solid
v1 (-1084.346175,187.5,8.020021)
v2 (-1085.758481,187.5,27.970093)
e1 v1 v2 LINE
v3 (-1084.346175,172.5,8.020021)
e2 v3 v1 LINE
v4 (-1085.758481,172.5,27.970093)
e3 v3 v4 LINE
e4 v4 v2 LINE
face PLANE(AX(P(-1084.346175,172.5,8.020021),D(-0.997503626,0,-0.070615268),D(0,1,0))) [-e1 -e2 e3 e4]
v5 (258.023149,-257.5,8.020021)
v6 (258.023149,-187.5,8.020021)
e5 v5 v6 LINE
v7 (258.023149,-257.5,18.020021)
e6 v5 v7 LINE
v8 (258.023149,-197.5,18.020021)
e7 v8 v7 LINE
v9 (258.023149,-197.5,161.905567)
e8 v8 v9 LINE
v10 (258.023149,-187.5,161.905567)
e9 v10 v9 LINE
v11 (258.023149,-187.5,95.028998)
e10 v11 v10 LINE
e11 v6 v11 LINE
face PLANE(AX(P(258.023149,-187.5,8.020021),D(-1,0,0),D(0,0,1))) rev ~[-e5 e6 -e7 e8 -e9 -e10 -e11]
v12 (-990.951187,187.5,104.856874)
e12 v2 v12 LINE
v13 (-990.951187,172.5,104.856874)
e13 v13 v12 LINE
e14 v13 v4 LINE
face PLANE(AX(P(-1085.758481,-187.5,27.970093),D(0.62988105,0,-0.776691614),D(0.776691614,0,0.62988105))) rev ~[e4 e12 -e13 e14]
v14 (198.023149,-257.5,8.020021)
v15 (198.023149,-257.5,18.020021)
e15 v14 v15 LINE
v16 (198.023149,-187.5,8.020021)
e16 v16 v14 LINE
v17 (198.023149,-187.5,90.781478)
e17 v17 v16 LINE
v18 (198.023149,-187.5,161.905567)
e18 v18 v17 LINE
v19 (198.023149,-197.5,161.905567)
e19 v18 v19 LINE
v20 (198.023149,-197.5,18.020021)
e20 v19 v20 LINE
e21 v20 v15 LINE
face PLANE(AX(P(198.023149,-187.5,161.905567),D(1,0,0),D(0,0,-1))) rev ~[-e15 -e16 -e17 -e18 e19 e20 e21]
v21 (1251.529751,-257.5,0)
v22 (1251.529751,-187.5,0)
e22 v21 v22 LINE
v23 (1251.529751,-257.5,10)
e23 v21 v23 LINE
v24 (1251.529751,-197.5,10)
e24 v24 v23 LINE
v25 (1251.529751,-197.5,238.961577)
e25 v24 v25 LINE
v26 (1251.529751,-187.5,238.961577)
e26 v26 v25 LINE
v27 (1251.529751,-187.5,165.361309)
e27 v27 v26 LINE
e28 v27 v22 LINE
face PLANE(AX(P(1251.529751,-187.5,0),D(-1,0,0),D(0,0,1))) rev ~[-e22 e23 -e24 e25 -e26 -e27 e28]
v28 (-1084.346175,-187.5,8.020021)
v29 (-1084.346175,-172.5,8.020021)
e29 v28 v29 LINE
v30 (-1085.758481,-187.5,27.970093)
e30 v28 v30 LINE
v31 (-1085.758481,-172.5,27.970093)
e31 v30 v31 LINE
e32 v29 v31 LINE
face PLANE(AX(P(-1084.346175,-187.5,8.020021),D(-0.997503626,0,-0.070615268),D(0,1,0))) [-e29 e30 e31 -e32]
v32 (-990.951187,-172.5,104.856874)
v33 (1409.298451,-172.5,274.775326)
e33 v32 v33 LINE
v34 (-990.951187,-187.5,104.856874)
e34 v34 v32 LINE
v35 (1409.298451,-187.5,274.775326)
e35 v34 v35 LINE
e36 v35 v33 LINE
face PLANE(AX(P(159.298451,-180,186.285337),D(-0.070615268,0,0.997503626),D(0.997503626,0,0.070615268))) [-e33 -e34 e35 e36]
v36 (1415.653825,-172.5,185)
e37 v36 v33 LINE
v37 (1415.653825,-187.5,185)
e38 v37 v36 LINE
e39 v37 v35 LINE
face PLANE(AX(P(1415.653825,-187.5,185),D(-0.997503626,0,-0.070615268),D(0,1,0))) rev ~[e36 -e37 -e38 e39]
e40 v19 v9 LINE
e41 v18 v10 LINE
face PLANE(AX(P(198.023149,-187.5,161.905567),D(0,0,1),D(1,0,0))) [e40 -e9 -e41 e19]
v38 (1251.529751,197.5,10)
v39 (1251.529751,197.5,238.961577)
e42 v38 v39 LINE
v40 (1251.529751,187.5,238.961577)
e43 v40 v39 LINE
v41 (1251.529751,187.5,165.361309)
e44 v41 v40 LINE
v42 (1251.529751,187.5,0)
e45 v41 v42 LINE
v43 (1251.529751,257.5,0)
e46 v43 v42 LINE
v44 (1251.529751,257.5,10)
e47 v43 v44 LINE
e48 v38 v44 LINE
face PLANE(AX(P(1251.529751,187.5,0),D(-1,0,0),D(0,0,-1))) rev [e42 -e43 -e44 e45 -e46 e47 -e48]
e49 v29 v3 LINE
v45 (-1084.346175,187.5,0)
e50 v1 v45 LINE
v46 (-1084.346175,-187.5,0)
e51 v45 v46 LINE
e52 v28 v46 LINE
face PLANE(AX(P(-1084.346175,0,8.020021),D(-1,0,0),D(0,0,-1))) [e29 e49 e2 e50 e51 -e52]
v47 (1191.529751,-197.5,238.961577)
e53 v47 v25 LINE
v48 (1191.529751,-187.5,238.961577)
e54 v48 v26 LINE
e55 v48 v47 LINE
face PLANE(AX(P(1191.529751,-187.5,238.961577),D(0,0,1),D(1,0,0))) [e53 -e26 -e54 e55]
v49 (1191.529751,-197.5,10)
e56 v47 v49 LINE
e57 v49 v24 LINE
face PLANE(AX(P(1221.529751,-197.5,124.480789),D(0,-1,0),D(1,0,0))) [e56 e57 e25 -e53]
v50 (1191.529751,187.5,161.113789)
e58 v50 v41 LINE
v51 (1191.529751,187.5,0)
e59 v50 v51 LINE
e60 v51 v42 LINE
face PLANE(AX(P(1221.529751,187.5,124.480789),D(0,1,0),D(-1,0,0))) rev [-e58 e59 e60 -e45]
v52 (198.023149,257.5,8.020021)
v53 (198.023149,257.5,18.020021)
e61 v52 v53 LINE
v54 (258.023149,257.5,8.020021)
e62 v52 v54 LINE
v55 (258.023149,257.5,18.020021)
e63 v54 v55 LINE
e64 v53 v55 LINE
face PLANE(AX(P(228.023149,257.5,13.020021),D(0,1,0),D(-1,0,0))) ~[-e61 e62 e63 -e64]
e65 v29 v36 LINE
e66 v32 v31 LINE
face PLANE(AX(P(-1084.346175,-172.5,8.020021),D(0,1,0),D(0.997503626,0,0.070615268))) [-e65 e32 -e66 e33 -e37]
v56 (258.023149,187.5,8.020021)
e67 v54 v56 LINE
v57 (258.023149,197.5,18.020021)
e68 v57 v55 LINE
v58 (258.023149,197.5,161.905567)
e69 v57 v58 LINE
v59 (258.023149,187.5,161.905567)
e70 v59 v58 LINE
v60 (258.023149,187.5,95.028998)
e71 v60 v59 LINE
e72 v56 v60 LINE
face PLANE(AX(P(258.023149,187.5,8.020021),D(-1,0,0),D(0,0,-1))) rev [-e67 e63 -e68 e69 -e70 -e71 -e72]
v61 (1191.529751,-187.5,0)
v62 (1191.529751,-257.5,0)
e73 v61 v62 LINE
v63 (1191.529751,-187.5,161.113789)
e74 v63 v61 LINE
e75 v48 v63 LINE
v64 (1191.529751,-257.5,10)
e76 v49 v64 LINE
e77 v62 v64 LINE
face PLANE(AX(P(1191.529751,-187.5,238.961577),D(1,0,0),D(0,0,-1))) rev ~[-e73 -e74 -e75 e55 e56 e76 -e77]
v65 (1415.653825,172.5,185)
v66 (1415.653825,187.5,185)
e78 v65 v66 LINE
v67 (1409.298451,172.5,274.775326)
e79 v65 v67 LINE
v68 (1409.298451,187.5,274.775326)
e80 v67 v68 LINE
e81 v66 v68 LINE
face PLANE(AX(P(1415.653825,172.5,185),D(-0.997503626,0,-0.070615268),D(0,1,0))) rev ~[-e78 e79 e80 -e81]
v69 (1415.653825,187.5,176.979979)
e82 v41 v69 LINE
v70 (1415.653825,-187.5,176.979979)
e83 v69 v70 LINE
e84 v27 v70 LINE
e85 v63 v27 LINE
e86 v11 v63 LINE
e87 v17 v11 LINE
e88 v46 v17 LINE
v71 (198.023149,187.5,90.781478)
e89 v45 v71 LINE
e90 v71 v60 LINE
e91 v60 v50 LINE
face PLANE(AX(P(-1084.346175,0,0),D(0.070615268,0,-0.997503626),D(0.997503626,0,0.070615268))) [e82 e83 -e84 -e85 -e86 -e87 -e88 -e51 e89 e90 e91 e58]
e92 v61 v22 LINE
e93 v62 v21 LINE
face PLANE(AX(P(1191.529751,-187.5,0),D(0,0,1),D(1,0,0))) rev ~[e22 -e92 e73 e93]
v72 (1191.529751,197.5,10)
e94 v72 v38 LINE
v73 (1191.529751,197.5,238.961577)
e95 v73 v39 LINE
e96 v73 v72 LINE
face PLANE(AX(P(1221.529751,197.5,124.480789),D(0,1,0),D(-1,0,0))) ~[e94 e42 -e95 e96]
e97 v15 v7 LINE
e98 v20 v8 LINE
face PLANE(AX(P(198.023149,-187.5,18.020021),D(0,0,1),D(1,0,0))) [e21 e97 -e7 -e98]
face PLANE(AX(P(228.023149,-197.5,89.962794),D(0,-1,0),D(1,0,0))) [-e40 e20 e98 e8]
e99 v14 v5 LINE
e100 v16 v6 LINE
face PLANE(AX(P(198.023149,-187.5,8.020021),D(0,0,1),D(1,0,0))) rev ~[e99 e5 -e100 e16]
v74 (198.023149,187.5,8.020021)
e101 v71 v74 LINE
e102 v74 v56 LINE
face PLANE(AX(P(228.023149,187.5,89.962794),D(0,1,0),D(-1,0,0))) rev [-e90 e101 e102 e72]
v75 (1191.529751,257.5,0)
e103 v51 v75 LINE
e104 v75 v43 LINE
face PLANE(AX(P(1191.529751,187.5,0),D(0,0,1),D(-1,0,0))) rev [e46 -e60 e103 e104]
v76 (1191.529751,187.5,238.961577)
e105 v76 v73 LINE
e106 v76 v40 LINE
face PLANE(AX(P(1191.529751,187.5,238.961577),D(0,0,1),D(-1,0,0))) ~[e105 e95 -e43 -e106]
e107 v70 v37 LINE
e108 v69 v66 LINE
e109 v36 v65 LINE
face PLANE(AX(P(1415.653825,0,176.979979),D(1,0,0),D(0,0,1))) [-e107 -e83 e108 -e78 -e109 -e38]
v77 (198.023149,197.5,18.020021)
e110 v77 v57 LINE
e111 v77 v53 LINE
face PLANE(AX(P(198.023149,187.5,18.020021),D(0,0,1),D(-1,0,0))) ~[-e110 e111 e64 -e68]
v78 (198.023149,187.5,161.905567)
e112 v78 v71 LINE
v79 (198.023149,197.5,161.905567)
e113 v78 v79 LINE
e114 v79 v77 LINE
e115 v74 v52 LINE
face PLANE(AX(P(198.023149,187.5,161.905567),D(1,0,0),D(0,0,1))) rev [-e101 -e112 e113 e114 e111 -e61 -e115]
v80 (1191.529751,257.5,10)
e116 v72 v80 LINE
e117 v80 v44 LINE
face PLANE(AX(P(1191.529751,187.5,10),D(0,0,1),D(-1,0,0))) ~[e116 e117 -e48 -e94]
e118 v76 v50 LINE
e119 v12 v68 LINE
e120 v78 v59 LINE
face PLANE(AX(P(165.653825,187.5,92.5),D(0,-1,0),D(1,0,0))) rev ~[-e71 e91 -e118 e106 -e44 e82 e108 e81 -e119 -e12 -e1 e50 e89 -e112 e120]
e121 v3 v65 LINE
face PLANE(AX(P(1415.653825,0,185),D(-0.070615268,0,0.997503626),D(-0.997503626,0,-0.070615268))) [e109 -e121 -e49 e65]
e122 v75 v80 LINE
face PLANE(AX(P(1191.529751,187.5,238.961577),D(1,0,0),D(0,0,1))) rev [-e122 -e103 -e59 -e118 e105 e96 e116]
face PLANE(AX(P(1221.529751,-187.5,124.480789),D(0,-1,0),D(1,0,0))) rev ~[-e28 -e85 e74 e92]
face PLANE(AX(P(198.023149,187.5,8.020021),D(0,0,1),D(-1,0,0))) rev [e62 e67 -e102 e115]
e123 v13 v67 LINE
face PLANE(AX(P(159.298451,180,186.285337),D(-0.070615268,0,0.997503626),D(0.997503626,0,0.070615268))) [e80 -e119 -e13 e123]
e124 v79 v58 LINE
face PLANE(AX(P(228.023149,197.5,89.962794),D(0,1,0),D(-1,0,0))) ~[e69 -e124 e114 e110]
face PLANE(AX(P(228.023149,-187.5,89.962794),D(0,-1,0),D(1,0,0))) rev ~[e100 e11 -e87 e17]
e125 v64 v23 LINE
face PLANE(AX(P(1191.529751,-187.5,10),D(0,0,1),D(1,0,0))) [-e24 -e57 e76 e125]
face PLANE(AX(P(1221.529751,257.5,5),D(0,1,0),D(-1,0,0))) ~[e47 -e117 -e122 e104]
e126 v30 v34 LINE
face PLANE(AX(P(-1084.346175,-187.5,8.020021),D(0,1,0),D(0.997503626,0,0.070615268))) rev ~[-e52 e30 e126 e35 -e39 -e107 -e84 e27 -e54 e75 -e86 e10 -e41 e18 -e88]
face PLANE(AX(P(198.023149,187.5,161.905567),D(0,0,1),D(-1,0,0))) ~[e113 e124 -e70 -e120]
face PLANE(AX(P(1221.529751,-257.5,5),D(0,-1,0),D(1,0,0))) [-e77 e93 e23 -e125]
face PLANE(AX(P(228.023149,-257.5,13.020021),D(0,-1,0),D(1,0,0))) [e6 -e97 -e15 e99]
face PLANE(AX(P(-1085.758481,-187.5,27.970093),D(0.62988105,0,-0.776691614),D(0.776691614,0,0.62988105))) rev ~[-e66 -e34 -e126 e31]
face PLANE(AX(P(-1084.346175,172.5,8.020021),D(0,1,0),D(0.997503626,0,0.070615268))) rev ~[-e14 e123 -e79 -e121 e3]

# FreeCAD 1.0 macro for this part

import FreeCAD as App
import Part
import Sketcher

doc = App.newDocument("Part")
body = doc.addObject("PartDesign::Body", "Body")

sketch1 = doc.addObject("Sketcher::SketchObject", "Sketch")
body.addObject(sketch1)
sketch1.AttachmentSupport = (doc.XZ_Plane, [""])
sketch1.MapMode = "FlatFace"
sketch1.addGeometry([
    Part.LineSegment(App.Vector(-1084, 8, 0), App.Vector(-1084, 0, 0)),
    Part.LineSegment(App.Vector(-1084, 0, 0), App.Vector(1416, 177, 0)),
    Part.LineSegment(App.Vector(1416, 177, 0), App.Vector(1416, 185, 0)),
    Part.LineSegment(App.Vector(1416, 185, 0), App.Vector(-1084, 8, 0)),
], False)
sketch1.addConstraint([
    Sketcher.Constraint("Coincident", 0, 2, 1, 1),
    Sketcher.Constraint("Coincident", 1, 2, 2, 1),
    Sketcher.Constraint("Coincident", 2, 2, 3, 1),
    Sketcher.Constraint("Coincident", 3, 2, 0, 1),
    Sketcher.Constraint("Vertical", 0),
    Sketcher.Constraint("Vertical", 2),
    Sketcher.Constraint("PointOnObject", 0, 2, -1),
    Sketcher.Constraint("Parallel", 1, 3),
    Sketcher.Constraint("DistanceY", -1, 1, 2, 2, 185.0),
    Sketcher.Constraint("DistanceX", 0, 2, 1, 2, 2500.0),
    Sketcher.Constraint("DistanceY", 0, 2, 0, 1, 8.020021),
    Sketcher.Constraint("DistanceX", 0, 2, -1, 1, 1084.346175),
])
pad1 = doc.addObject("PartDesign::Pad", "Pad")
body.addObject(pad1)
pad1.Profile = sketch1
pad1.Length = 375
pad1.Midplane = True

sketch2 = doc.addObject("Sketcher::SketchObject", "Sketch001")
body.addObject(sketch2)
sketch2.Placement = App.Placement(App.Vector(-5.972032, 0, 84.360274), App.Rotation(App.Vector(0.997503626, 0, 0.070615268), App.Vector(0, 1, 0), App.Vector(-0.070615268, 0, 0.997503626), "ZXY"))
sketch2.addGeometry([
    Part.LineSegment(App.Vector(-1081, -172, 0), App.Vector(-1081, -187, 0)),
    Part.LineSegment(App.Vector(-1081, -187, 0), App.Vector(1425, -187, 0)),
    Part.LineSegment(App.Vector(1425, -187, 0), App.Vector(1425, -172, 0)),
    Part.LineSegment(App.Vector(1425, -172, 0), App.Vector(-1081, -172, 0)),
    Part.LineSegment(App.Vector(-1081, 187, 0), App.Vector(-1081, 172, 0)),
    Part.LineSegment(App.Vector(-1081, 172, 0), App.Vector(1425, 172, 0)),
    Part.LineSegment(App.Vector(1425, 172, 0), App.Vector(1425, 187, 0)),
    Part.LineSegment(App.Vector(1425, 187, 0), App.Vector(-1081, 187, 0)),
], False)
sketch2.addConstraint([
    Sketcher.Constraint("Coincident", 0, 2, 1, 1),
    Sketcher.Constraint("Coincident", 1, 2, 2, 1),
    Sketcher.Constraint("Coincident", 2, 2, 3, 1),
    Sketcher.Constraint("Coincident", 3, 2, 0, 1),
    Sketcher.Constraint("Coincident", 4, 2, 5, 1),
    Sketcher.Constraint("Coincident", 5, 2, 6, 1),
    Sketcher.Constraint("Coincident", 6, 2, 7, 1),
    Sketcher.Constraint("Coincident", 7, 2, 4, 1),
    Sketcher.Constraint("Vertical", 0),
    Sketcher.Constraint("Horizontal", 1),
    Sketcher.Constraint("Vertical", 2),
    Sketcher.Constraint("Horizontal", 3),
    Sketcher.Constraint("Vertical", 4),
    Sketcher.Constraint("Horizontal", 5),
    Sketcher.Constraint("Vertical", 6),
    Sketcher.Constraint("Horizontal", 7),
    Sketcher.Constraint("Symmetric", 3, 2, 4, 2, -1),
    Sketcher.Constraint("Symmetric", 1, 2, 6, 2, -1),
    Sketcher.Constraint("DistanceY", 0, 2, 0, 1, 15.0),
    Sketcher.Constraint("DistanceY", 3, 2, 4, 2, 345.0),
    Sketcher.Constraint("DistanceX", 1, 1, 1, 2, 2506.256554),
    Sketcher.Constraint("DistanceX", 0, 2, -1, 1, 1081.072906),
])
pad2 = doc.addObject("PartDesign::Pad", "Pad001")
body.addObject(pad2)
pad2.Profile = sketch2
pad2.Length = 90
body2 = doc.addObject("PartDesign::Body", "Body001")

sketch3 = doc.addObject("Sketcher::SketchObject", "Sketch002")
body2.addObject(sketch3)
sketch3.AttachmentSupport = (doc.getObject("XZ_Plane001"), [""])
sketch3.MapMode = "FlatFace"
sketch3.AttachmentOffset = App.Placement(App.Vector(0, 0, 187.5), App.Rotation())
sketch3.addGeometry([
    Part.LineSegment(App.Vector(198, 18, 0), App.Vector(198, 8, 0)),
    Part.LineSegment(App.Vector(198, 8, 0), App.Vector(258, 8, 0)),
    Part.LineSegment(App.Vector(258, 8, 0), App.Vector(258, 18, 0)),
    Part.LineSegment(App.Vector(258, 18, 0), App.Vector(198, 18, 0)),
], False)
sketch3.addConstraint([
    Sketcher.Constraint("Coincident", 0, 2, 1, 1),
    Sketcher.Constraint("Coincident", 1, 2, 2, 1),
    Sketcher.Constraint("Coincident", 2, 2, 3, 1),
    Sketcher.Constraint("Coincident", 3, 2, 0, 1),
    Sketcher.Constraint("Vertical", 0),
    Sketcher.Constraint("Horizontal", 1),
    Sketcher.Constraint("Vertical", 2),
    Sketcher.Constraint("Horizontal", 3),
    Sketcher.Constraint("DistanceX", 1, 1, 1, 2, 60.0),
    Sketcher.Constraint("DistanceY", 0, 2, 0, 1, 10.0),
    Sketcher.Constraint("DistanceX", -1, 1, 0, 2, 198.023149),
    Sketcher.Constraint("DistanceY", -1, 1, 0, 2, 8.020021),
])
pad3 = doc.addObject("PartDesign::Pad", "Pad002")
body2.addObject(pad3)
pad3.Profile = sketch3
pad3.Length = 70
body3 = doc.addObject("PartDesign::Body", "Body002")

sketch4 = doc.addObject("Sketcher::SketchObject", "Sketch003")
body3.addObject(sketch4)
sketch4.AttachmentSupport = (doc.getObject("XZ_Plane002"), [""])
sketch4.MapMode = "FlatFace"
sketch4.AttachmentOffset = App.Placement(App.Vector(0, 0, 187.5), App.Rotation())
sketch4.addGeometry([
    Part.LineSegment(App.Vector(1192, 10, 0), App.Vector(1192, 0, 0)),
    Part.LineSegment(App.Vector(1192, 0, 0), App.Vector(1252, 0, 0)),
    Part.LineSegment(App.Vector(1252, 0, 0), App.Vector(1252, 10, 0)),
    Part.LineSegment(App.Vector(1252, 10, 0), App.Vector(1192, 10, 0)),
], False)
sketch4.addConstraint([
    Sketcher.Constraint("Coincident", 0, 2, 1, 1),
    Sketcher.Constraint("Coincident", 1, 2, 2, 1),
    Sketcher.Constraint("Coincident", 2, 2, 3, 1),
    Sketcher.Constraint("Coincident", 3, 2, 0, 1),
    Sketcher.Constraint("Vertical", 0),
    Sketcher.Constraint("Horizontal", 1),
    Sketcher.Constraint("Vertical", 2),
    Sketcher.Constraint("Horizontal", 3),
    Sketcher.Constraint("PointOnObject", 0, 2, -1),
    Sketcher.Constraint("DistanceX", 1, 1, 1, 2, 60.0),
    Sketcher.Constraint("DistanceY", 0, 2, 0, 1, 10.0),
    Sketcher.Constraint("DistanceX", -1, 1, 0, 2, 1191.529751),
])
pad4 = doc.addObject("PartDesign::Pad", "Pad003")
body3.addObject(pad4)
pad4.Profile = sketch4
pad4.Length = 70
body.AllowCompound = True
doc.recompute()

boolean = doc.addObject("PartDesign::Boolean", "Boolean")
body.addObject(boolean)
boolean.Type = "Fuse"
boolean.addObjects([body2])
doc.recompute()

boolean2 = doc.addObject("PartDesign::Boolean", "Boolean001")
body.addObject(boolean2)
boolean2.Type = "Fuse"
boolean2.addObjects([body3])

sketch5 = doc.addObject("Sketcher::SketchObject", "Sketch004")
body.addObject(sketch5)
sketch5.AttachmentSupport = (doc.XZ_Plane, [""])
sketch5.MapMode = "FlatFace"
sketch5.AttachmentOffset = App.Placement(App.Vector(0, 0, 187.5), App.Rotation())
sketch5.addGeometry([
    Part.LineSegment(App.Vector(1192, 239, 0), App.Vector(1192, 0, 0)),
    Part.LineSegment(App.Vector(1192, 0, 0), App.Vector(1252, 0, 0)),
    Part.LineSegment(App.Vector(1252, 0, 0), App.Vector(1252, 239, 0)),
    Part.LineSegment(App.Vector(1252, 239, 0), App.Vector(1192, 239, 0)),
    Part.LineSegment(App.Vector(198, 162, 0), App.Vector(198, 8, 0)),
    Part.LineSegment(App.Vector(198, 8, 0), App.Vector(258, 8, 0)),
    Part.LineSegment(App.Vector(258, 8, 0), App.Vector(258, 162, 0)),
    Part.LineSegment(App.Vector(258, 162, 0), App.Vector(198, 162, 0)),
], False)
sketch5.addConstraint([
    Sketcher.Constraint("Coincident", 0, 2, 1, 1),
    Sketcher.Constraint("Coincident", 1, 2, 2, 1),
    Sketcher.Constraint("Coincident", 2, 2, 3, 1),
    Sketcher.Constraint("Coincident", 3, 2, 0, 1),
    Sketcher.Constraint("Coincident", 4, 2, 5, 1),
    Sketcher.Constraint("Coincident", 5, 2, 6, 1),
    Sketcher.Constraint("Coincident", 6, 2, 7, 1),
    Sketcher.Constraint("Coincident", 7, 2, 4, 1),
    Sketcher.Constraint("Vertical", 0),
    Sketcher.Constraint("Horizontal", 1),
    Sketcher.Constraint("Vertical", 2),
    Sketcher.Constraint("Horizontal", 3),
    Sketcher.Constraint("Vertical", 4),
    Sketcher.Constraint("Horizontal", 5),
    Sketcher.Constraint("Vertical", 6),
    Sketcher.Constraint("Horizontal", 7),
    Sketcher.Constraint("PointOnObject", 0, 2, -1),
    Sketcher.Constraint("Equal", 3, 5),
    Sketcher.Constraint("DistanceX", 1, 1, 1, 2, 60.0),
    Sketcher.Constraint("DistanceX", 4, 2, 0, 2, 993.506601),
    Sketcher.Constraint("DistanceY", 0, 2, 0, 1, 238.961577),
    Sketcher.Constraint("DistanceY", 4, 2, 4, 1, 153.885546),
    Sketcher.Constraint("DistanceX", -1, 1, 0, 2, 1191.529751),
    Sketcher.Constraint("DistanceY", -1, 1, 4, 2, 8.020021),
])
pad5 = doc.addObject("PartDesign::Pad", "Pad004")
body.addObject(pad5)
pad5.Profile = sketch5
pad5.Length = 10
body4 = doc.addObject("PartDesign::Body", "Body003")
doc.recompute()

body4.BaseFeature = body
doc.recompute()

mirroring = doc.addObject("Part::Mirroring", "Mirroring")
mirroring.Source = body
mirroring.Base = App.Vector(0, 0, 0)
mirroring.Normal = App.Vector(0, -1, 0)
body5 = doc.addObject("PartDesign::Body", "Body004")
body5.BaseFeature = mirroring
boolean3 = doc.addObject("PartDesign::Boolean", "Boolean002")
body4.addObject(boolean3)
boolean3.Type = "Fuse"
boolean3.addObjects([body5])
doc.recompute()

sketch6 = doc.addObject("Sketcher::SketchObject", "Sketch005")
body4.addObject(sketch6)
sketch6.AttachmentSupport = (doc.getObject("XZ_Plane003"), [""])
sketch6.MapMode = "FlatFace"
sketch6.AttachmentOffset = App.Placement(App.Vector(0, 0, 187.5), App.Rotation())
sketch6.addGeometry([
    Part.LineSegment(App.Vector(-1086, 28, 0), App.Vector(-991, 105, 0)),
    Part.LineSegment(App.Vector(-991, 105, 0), App.Vector(-1091, 98, 0)),
    Part.LineSegment(App.Vector(-1091, 98, 0), App.Vector(-1086, 28, 0)),
], False)
sketch6.addConstraint([
    Sketcher.Constraint("Coincident", 0, 2, 1, 1),
    Sketcher.Constraint("Coincident", 1, 2, 2, 1),
    Sketcher.Constraint("Coincident", 2, 2, 0, 1),
    Sketcher.Constraint("Perpendicular", 1, 2),
    Sketcher.Constraint("Distance", 1, 100.0),
    Sketcher.Constraint("Distance", 2, 70.0),
    Sketcher.Constraint("DistanceX", 1, 2, -1, 1, 1090.701549),
    Sketcher.Constraint("DistanceX", 2, 2, -1, 1, 1085.758481),
    Sketcher.Constraint("DistanceY", -1, 1, 0, 2, 104.856874),
])
pocket1 = doc.addObject("PartDesign::Pocket", "Pocket")
body4.addObject(pocket1)
pocket1.Profile = sketch6
pocket1.Type = "ThroughAll"
mirroring.Visibility = False

doc.recompute()
